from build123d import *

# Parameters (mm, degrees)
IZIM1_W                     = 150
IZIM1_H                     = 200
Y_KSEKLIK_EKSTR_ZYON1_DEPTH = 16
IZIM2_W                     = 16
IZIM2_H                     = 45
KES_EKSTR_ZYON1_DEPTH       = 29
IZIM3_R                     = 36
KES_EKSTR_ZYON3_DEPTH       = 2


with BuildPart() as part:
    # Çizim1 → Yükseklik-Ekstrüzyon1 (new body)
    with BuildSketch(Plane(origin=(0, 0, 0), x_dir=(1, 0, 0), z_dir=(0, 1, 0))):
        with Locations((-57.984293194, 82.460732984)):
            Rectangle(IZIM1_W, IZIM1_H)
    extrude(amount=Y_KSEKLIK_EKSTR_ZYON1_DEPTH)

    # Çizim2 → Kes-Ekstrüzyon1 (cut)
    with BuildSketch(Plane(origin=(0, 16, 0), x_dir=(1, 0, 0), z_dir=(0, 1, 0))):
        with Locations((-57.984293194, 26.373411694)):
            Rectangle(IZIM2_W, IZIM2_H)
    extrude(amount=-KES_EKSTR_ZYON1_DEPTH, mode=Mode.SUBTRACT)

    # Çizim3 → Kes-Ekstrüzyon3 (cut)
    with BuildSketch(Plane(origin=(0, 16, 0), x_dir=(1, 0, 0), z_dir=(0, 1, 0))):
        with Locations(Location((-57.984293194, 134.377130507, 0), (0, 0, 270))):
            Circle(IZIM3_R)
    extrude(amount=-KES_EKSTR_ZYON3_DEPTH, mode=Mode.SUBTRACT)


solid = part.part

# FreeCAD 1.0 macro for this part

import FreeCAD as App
import Part
import Sketcher


def add_polygon(sketch, points):
    """Adds a closed chain of lines whose ends are joined by coincident constraints."""
    first, n = sketch.GeometryCount, len(points)
    for a, b in zip(points, points[1:] + points[:1]):
        sketch.addGeometry(Part.LineSegment(App.Vector(*a, 0), App.Vector(*b, 0)), False)
    for i in range(n):
        sketch.addConstraint(Sketcher.Constraint("Coincident", first + i, 2, first + (i + 1) % n, 1))

doc = App.newDocument("Part")
body = doc.addObject("PartDesign::Body", "Body")

# Sketch on XZ plane
sketch1 = body.newObject("Sketcher::SketchObject", "Sketch")
sketch1.AttachmentSupport = (doc.getObject("XZ_Plane"), [""])
sketch1.MapMode = "FlatFace"
add_polygon(sketch1, [(-132.984293, -182.460733), (-132.984293, 17.539267), (17.015707, 17.539267), (17.015707, -182.460733)])  # lines 0-3
sketch1.addConstraint(Sketcher.Constraint("Vertical", 0))
sketch1.addConstraint(Sketcher.Constraint("Horizontal", 1))
sketch1.addConstraint(Sketcher.Constraint("Vertical", 2))
sketch1.addConstraint(Sketcher.Constraint("Horizontal", 3))
sketch1.addConstraint(Sketcher.Constraint("DistanceX", 1, 1, 1, 2, 150.0))
sketch1.addConstraint(Sketcher.Constraint("DistanceY", 0, 1, 0, 2, 200.0))
sketch1.addConstraint(Sketcher.Constraint("DistanceX", 0, 2, -1, 1, 132.984293))
sketch1.addConstraint(Sketcher.Constraint("DistanceY", -1, 1, 0, 2, 17.539267))
pad1 = body.newObject("PartDesign::Pad", "Pad")
pad1.Profile = sketch1
pad1.Length = 16
pad1.Reversed = True

# Sketch on XZ plane
sketch2 = body.newObject("Sketcher::SketchObject", "Sketch001")
sketch2.AttachmentSupport = (doc.getObject("XZ_Plane"), [""])
sketch2.MapMode = "FlatFace"
sketch2.AttachmentOffset = App.Placement(App.Vector(0, 0, -16), App.Rotation())
add_polygon(sketch2, [(-65.984293, -48.873412), (-65.984293, -3.873412), (-49.984293, -3.873412), (-49.984293, -48.873412)])  # lines 0-3
sketch2.addConstraint(Sketcher.Constraint("Vertical", 0))
sketch2.addConstraint(Sketcher.Constraint("Horizontal", 1))
sketch2.addConstraint(Sketcher.Constraint("Vertical", 2))
sketch2.addConstraint(Sketcher.Constraint("Horizontal", 3))
sketch2.addConstraint(Sketcher.Constraint("DistanceX", 1, 1, 1, 2, 16.0))
sketch2.addConstraint(Sketcher.Constraint("DistanceY", 0, 1, 0, 2, 45.0))
sketch2.addConstraint(Sketcher.Constraint("DistanceY", 0, 2, -1, 1, 3.873412))
sketch2.addConstraint(Sketcher.Constraint("DistanceX", 0, 2, -1, 1, 65.984293))
pocket1 = body.newObject("PartDesign::Pocket", "Pocket")
pocket1.Profile = sketch2
pocket1.Length = 29
pocket1.Reversed = True

# Sketch on XZ plane
sketch3 = body.newObject("Sketcher::SketchObject", "Sketch002")
sketch3.AttachmentSupport = (doc.getObject("XZ_Plane"), [""])
sketch3.MapMode = "FlatFace"
sketch3.AttachmentOffset = App.Placement(App.Vector(0, 0, -16), App.Rotation())
sketch3.addGeometry(Part.Circle(App.Vector(-57.984293, -134.377131, 0), App.Vector(0, 0, 1), 36), False)
sketch3.addConstraint(Sketcher.Constraint("Diameter", 0, 72.0))
sketch3.addConstraint(Sketcher.Constraint("DistanceY", 0, 3, -1, 1, 134.377131))
sketch3.addConstraint(Sketcher.Constraint("DistanceX", 0, 3, -1, 1, 57.984293))
pocket2 = body.newObject("PartDesign::Pocket", "Pocket001")
pocket2.Profile = sketch3
pocket2.Length = 2
pocket2.Reversed = True

doc.recompute()
